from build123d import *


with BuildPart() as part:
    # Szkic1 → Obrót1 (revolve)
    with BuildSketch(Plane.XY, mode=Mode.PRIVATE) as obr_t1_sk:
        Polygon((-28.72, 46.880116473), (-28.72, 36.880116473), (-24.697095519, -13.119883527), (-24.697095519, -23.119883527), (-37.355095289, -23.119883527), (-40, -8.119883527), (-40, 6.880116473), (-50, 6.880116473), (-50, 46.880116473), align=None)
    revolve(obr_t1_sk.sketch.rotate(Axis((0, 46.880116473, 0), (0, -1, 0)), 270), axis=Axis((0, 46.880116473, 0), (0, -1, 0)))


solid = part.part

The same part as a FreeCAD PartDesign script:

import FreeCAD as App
import Part
import Sketcher
from FreeCAD import Vector
Q = App.Units.Quantity


def add_polygon(sketch, points):
    """Adds a closed chain of lines whose ends are joined by coincident constraints."""
    first, n = sketch.GeometryCount, len(points)
    for a, b in zip(points, points[1:] + points[:1]):
        sketch.addGeometry(Part.LineSegment(App.Vector(*a, 0), App.Vector(*b, 0)), False)
    for i in range(n):
        sketch.addConstraint(Sketcher.Constraint("Coincident", first + i, 2, first + (i + 1) % n, 1))

doc = App.newDocument("Part")
body = doc.addObject("PartDesign::Body", "Body")

# Sketch on XY plane
sketch1 = body.newObject("Sketcher::SketchObject", "Sketch")
sketch1.AttachmentSupport = (doc.getObject("XY_Plane"), [""])
sketch1.MapMode = "FlatFace"
add_polygon(sketch1, [(-28.72, 36.880116), (-28.72, 46.880116), (-50, 46.880116), (-50, 6.880116), (-40, 6.880116), (-40, -8.119884), (-37.355095, -23.119884), (-24.697096, -23.119884), (-24.697096, -13.119884)])  # lines 0-8
sketch1.addConstraint([
    Sketcher.Constraint("Vertical", 0),
    Sketcher.Constraint("Horizontal", 1),
    Sketcher.Constraint("Vertical", 2),
    Sketcher.Constraint("Horizontal", 3),
    Sketcher.Constraint("Vertical", 4),
    Sketcher.Constraint("Horizontal", 6),
    Sketcher.Constraint("Vertical", 7),
    Sketcher.Constraint("Equal", 3, 0),
    Sketcher.Constraint("Equal", 0, 7),
    Sketcher.Constraint("DistanceX", 3, 1, 3, 2, Q("10 mm")),
    Sketcher.Constraint("DistanceY", 2, 2, 2, 1, Q("40 mm")),
    Sketcher.Constraint("DistanceY", 4, 2, 4, 1, Q("15 mm")),
    Sketcher.Constraint("Angle", 5, Q("-80 deg")),
    Sketcher.Constraint("DistanceX", 1, 2, -1, 1, Q("50 mm")),
    Sketcher.Constraint("Angle", 8, Q("94.6 deg")),
    Sketcher.Constraint("DistanceY", 5, 2, 4, 2, Q("15 mm")),
    Sketcher.Constraint("DistanceX", 1, 2, 1, 1, Q("21.28 mm")),
    Sketcher.Constraint("DistanceY", -1, 1, 0, 2, Q("46.880116 mm")),
])
revolution = body.newObject("PartDesign::Revolution", "Revolution")
revolution.Profile = sketch1
revolution.ReferenceAxis = (sketch1, ["V_Axis"])
revolution.Angle = 360

doc.recompute()
